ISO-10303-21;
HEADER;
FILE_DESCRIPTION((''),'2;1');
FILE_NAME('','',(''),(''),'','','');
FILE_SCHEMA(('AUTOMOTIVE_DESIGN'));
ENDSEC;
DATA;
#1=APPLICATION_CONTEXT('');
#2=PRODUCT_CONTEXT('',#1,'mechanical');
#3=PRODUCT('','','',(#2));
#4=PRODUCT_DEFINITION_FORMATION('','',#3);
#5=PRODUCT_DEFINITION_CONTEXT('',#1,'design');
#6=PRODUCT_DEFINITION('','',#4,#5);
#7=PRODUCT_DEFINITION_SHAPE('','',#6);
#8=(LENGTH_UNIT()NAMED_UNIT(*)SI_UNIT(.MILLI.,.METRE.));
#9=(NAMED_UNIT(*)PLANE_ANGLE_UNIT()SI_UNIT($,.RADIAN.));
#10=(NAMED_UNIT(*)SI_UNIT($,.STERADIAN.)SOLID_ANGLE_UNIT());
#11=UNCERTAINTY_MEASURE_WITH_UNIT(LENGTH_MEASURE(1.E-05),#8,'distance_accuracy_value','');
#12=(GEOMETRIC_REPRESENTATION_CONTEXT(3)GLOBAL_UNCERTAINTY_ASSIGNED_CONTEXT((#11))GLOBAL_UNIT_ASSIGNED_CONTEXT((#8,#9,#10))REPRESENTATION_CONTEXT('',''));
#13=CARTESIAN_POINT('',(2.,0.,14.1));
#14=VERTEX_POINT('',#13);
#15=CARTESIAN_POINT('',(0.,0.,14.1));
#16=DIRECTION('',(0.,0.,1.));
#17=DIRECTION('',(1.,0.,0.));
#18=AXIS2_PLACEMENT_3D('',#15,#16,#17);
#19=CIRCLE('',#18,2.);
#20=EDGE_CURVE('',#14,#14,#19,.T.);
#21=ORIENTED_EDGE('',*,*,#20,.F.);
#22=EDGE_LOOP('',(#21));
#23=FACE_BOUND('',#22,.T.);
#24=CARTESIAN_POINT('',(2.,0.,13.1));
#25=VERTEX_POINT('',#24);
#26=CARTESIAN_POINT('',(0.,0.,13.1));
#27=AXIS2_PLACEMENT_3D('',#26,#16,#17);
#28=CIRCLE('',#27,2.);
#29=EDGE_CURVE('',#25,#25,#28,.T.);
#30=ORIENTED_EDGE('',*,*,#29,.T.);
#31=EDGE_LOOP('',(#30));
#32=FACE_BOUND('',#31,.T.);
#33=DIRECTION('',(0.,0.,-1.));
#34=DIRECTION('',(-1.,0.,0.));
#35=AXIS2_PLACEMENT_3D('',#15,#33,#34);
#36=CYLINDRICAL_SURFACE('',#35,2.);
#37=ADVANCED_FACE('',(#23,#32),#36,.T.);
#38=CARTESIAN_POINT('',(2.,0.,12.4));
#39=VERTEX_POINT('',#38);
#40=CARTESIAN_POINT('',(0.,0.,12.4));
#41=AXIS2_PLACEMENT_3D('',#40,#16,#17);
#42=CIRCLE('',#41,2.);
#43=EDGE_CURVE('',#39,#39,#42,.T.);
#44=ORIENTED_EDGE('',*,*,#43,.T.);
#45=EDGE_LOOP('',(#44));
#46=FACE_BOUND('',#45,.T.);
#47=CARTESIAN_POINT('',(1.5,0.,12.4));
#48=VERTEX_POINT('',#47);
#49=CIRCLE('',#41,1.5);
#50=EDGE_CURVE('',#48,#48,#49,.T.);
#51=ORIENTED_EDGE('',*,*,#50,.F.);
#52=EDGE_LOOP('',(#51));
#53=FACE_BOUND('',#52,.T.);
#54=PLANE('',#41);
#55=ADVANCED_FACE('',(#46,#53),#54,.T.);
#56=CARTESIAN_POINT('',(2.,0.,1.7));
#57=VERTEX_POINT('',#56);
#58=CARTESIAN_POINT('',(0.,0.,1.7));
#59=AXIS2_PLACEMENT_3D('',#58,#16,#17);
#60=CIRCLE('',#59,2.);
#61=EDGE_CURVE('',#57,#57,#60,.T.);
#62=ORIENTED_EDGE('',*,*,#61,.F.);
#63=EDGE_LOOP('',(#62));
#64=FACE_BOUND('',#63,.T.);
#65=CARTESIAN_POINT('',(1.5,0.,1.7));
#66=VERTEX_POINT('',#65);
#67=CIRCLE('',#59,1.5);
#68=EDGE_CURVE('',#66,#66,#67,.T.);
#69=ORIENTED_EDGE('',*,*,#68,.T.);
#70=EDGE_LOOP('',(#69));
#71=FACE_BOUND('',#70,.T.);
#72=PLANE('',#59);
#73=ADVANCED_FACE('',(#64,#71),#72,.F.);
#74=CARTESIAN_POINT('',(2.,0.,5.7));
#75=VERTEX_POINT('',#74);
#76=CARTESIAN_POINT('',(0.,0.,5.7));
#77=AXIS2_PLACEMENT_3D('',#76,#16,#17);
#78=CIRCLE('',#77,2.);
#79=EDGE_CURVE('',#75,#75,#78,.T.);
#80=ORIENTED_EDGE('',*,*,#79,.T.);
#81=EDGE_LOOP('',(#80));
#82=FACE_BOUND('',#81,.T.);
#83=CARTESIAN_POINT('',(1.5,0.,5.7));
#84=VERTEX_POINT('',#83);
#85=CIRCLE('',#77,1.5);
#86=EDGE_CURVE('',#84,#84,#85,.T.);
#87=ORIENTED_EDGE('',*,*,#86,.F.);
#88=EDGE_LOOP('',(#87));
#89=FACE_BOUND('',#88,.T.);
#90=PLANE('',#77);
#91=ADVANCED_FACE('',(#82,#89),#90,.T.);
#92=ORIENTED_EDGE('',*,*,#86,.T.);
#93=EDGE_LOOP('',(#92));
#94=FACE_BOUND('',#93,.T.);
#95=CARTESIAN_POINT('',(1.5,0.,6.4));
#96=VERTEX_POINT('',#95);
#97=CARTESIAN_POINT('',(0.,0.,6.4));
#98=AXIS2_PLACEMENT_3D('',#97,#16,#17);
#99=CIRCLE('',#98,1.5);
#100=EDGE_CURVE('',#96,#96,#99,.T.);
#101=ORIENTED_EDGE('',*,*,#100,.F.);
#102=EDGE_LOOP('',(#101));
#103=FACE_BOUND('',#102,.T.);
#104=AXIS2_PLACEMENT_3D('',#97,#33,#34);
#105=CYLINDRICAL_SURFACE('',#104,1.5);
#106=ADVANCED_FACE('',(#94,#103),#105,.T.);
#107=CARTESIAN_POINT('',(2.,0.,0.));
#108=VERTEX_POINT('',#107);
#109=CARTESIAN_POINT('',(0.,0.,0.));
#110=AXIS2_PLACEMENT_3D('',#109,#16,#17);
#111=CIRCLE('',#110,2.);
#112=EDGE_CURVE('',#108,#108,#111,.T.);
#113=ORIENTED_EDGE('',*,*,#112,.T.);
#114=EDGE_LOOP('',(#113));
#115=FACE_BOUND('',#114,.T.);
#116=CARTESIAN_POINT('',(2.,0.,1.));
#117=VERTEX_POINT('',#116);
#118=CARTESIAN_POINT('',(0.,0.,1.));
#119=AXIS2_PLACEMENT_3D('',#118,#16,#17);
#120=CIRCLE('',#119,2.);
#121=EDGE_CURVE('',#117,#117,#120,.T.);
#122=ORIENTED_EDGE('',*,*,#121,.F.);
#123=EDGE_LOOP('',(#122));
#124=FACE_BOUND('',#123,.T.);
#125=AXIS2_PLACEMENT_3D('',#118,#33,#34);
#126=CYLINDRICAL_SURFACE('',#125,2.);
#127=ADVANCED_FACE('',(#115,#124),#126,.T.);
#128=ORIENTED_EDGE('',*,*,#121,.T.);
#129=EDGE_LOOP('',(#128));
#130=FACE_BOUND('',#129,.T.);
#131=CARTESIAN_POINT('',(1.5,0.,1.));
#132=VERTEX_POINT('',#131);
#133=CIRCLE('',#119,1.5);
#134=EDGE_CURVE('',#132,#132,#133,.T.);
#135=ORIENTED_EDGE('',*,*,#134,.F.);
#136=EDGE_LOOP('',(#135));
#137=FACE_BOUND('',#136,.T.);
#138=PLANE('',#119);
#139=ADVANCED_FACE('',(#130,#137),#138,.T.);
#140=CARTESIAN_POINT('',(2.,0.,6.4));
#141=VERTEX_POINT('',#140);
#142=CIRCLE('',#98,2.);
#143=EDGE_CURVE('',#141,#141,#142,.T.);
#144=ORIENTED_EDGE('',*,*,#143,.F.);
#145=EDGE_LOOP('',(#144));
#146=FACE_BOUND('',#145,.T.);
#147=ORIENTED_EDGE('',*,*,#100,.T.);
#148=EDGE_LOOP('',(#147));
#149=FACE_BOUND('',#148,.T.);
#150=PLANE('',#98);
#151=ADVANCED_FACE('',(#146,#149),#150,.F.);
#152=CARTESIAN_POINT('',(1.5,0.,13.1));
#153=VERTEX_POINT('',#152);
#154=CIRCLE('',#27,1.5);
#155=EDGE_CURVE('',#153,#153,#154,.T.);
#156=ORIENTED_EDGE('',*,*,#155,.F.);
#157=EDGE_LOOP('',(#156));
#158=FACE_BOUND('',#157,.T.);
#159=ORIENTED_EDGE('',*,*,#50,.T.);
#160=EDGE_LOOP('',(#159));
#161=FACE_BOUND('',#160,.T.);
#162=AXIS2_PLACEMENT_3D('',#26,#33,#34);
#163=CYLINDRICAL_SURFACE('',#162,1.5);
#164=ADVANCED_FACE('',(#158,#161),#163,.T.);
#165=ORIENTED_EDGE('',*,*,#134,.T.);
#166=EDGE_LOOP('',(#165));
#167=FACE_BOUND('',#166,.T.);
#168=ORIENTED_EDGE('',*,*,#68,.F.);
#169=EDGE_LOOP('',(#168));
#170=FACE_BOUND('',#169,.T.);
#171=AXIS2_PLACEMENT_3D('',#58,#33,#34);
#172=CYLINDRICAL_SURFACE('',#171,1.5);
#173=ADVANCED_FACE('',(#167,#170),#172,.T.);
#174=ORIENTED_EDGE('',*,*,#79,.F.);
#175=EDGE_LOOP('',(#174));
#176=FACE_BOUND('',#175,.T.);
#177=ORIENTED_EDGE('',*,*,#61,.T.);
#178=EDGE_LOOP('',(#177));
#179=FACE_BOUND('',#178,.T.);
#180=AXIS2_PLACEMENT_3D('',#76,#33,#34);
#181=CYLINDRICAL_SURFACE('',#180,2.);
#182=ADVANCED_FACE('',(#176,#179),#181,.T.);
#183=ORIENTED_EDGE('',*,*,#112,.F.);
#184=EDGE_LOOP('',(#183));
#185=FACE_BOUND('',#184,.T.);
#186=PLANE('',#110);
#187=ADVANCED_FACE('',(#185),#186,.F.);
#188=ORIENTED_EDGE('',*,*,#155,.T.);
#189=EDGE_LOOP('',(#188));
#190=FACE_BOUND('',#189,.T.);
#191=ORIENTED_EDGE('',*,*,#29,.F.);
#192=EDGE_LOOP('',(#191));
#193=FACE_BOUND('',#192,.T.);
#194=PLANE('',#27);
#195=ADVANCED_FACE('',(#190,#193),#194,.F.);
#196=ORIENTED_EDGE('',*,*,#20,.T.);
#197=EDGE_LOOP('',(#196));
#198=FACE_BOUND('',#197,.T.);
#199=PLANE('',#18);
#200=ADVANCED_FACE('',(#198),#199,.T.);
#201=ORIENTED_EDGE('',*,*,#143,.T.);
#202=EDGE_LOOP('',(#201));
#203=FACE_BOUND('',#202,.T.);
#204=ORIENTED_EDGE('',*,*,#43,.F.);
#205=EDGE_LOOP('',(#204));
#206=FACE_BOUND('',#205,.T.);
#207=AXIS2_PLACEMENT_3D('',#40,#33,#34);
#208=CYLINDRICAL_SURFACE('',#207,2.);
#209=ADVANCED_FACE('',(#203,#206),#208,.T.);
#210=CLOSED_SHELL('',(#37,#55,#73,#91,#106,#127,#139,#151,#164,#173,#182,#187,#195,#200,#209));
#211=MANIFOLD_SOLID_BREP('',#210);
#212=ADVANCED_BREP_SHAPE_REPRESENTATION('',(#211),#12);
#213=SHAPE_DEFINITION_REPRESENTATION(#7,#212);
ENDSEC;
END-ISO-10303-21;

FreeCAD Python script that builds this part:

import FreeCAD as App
import Part
import Sketcher

V = App.Vector

doc = App.newDocument("Part")
body = doc.addObject("PartDesign::Body", "Body")

sketch1 = doc.addObject("Sketcher::SketchObject", "Sketch")
body.addObject(sketch1)
sketch1.AttachmentSupport = (doc.XY_Plane, [""])
sketch1.MapMode = "FlatFace"
sketch1.addGeometry(Part.Circle(V(0, 0, 0), V(0, 0, 1), 2), False)
sketch1.addConstraint([
    Sketcher.Constraint("Coincident", 0, 3, -1, 1),
    Sketcher.Constraint("Diameter", 0, 4.0),
])
pad1 = doc.addObject("PartDesign::Pad", "Pad")
body.addObject(pad1)
pad1.Profile = sketch1
pad1.Length = 1

sketch2 = doc.addObject("Sketcher::SketchObject", "Sketch001")
body.addObject(sketch2)
sketch2.AttachmentSupport = (doc.XY_Plane, [""])
sketch2.MapMode = "FlatFace"
sketch2.AttachmentOffset = App.Placement(V(0, 0, 1), App.Rotation())
sketch2.addGeometry(Part.Circle(V(0, 0, 0), V(0, 0, 1), 1.5), False)
sketch2.addConstraint([
    Sketcher.Constraint("Coincident", 0, 3, -1, 1),
    Sketcher.Constraint("Diameter", 0, 3.0),
])
pad2 = doc.addObject("PartDesign::Pad", "Pad001")
body.addObject(pad2)
pad2.Profile = sketch2
pad2.Length = 0.7

sketch3 = doc.addObject("Sketcher::SketchObject", "Sketch002")
body.addObject(sketch3)
sketch3.AttachmentSupport = (doc.XY_Plane, [""])
sketch3.MapMode = "FlatFace"
sketch3.AttachmentOffset = App.Placement(V(0, 0, 1.7), App.Rotation())
sketch3.addGeometry(Part.Circle(V(0, 0, 0), V(0, 0, 1), 2), False)
sketch3.addConstraint([
    Sketcher.Constraint("Coincident", 0, 3, -1, 1),
    Sketcher.Constraint("Diameter", 0, 4.0),
])
pad3 = doc.addObject("PartDesign::Pad", "Pad002")
body.addObject(pad3)
pad3.Profile = sketch3
pad3.Length = 4

sketch4 = doc.addObject("Sketcher::SketchObject", "Sketch003")
body.addObject(sketch4)
sketch4.AttachmentSupport = (doc.XY_Plane, [""])
sketch4.MapMode = "FlatFace"
sketch4.AttachmentOffset = App.Placement(V(0, 0, 5.7), App.Rotation())
sketch4.addGeometry(Part.Circle(V(0, 0, 0), V(0, 0, 1), 1.5), False)
sketch4.addConstraint([
    Sketcher.Constraint("Coincident", 0, 3, -1, 1),
    Sketcher.Constraint("Diameter", 0, 3.0),
])
pad4 = doc.addObject("PartDesign::Pad", "Pad003")
body.addObject(pad4)
pad4.Profile = sketch4
pad4.Length = 0.7

sketch5 = doc.addObject("Sketcher::SketchObject", "Sketch004")
body.addObject(sketch5)
sketch5.AttachmentSupport = (doc.XY_Plane, [""])
sketch5.MapMode = "FlatFace"
sketch5.AttachmentOffset = App.Placement(V(0, 0, 6.4), App.Rotation())
sketch5.addGeometry(Part.Circle(V(0, 0, 0), V(0, 0, 1), 2), False)
sketch5.addConstraint([
    Sketcher.Constraint("Coincident", 0, 3, -1, 1),
    Sketcher.Constraint("Diameter", 0, 4.0),
])
pad5 = doc.addObject("PartDesign::Pad", "Pad004")
body.addObject(pad5)
pad5.Profile = sketch5
pad5.Length = 6

sketch6 = doc.addObject("Sketcher::SketchObject", "Sketch005")
body.addObject(sketch6)
sketch6.AttachmentSupport = (doc.XY_Plane, [""])
sketch6.MapMode = "FlatFace"
sketch6.AttachmentOffset = App.Placement(V(0, 0, 12.4), App.Rotation())
sketch6.addGeometry(Part.Circle(V(0, 0, 0), V(0, 0, 1), 1.5), False)
sketch6.addConstraint([
    Sketcher.Constraint("Coincident", 0, 3, -1, 1),
    Sketcher.Constraint("Diameter", 0, 3.0),
])
pad6 = doc.addObject("PartDesign::Pad", "Pad005")
body.addObject(pad6)
pad6.Profile = sketch6
pad6.Length = 0.7

sketch7 = doc.addObject("Sketcher::SketchObject", "Sketch006")
body.addObject(sketch7)
sketch7.AttachmentSupport = (doc.XY_Plane, [""])
sketch7.MapMode = "FlatFace"
sketch7.AttachmentOffset = App.Placement(V(0, 0, 13.1), App.Rotation())
sketch7.addGeometry(Part.Circle(V(0, 0, 0), V(0, 0, 1), 2), False)
sketch7.addConstraint([
    Sketcher.Constraint("Coincident", 0, 3, -1, 1),
    Sketcher.Constraint("Diameter", 0, 4.0),
])
pad7 = doc.addObject("PartDesign::Pad", "Pad006")
body.addObject(pad7)
pad7.Profile = sketch7
pad7.Length = 1

doc.recompute()
